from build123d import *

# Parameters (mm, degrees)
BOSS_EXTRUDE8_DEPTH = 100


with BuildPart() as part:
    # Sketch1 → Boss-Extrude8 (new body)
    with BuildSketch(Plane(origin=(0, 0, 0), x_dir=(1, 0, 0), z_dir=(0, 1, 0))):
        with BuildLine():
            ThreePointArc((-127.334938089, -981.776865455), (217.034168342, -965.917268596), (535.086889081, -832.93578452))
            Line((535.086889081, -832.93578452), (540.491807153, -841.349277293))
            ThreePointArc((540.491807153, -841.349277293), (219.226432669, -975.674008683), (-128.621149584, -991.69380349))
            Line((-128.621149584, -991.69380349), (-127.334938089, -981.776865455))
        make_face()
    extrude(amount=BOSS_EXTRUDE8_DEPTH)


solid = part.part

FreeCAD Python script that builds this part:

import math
import FreeCAD as App
import Part
import Sketcher
Q = App.Units.Quantity

doc = App.newDocument("Part")
body = doc.addObject("PartDesign::Body", "Body")

# Sketch on XZ plane
sketch1 = body.newObject("Sketcher::SketchObject", "Sketch")
sketch1.AttachmentSupport = (doc.getObject("XZ_Plane"), [""])
sketch1.MapMode = "FlatFace"
sketch1.addGeometry(Part.ArcOfCircle(Part.Circle(App.Vector(0, 0, 0), App.Vector(0, 0, 1), 990), math.radians(57), math.radians(97)), False)
sketch1.addGeometry(Part.LineSegment(App.Vector(-127, 982, 0), App.Vector(-129, 992, 0)), False)
sketch1.addGeometry(Part.ArcOfCircle(Part.Circle(App.Vector(0, 0, 0), App.Vector(0, 0, 1), 1000), math.radians(57), math.radians(97)), False)
sketch1.addGeometry(Part.LineSegment(App.Vector(540, 841, 0), App.Vector(535, 833, 0)), False)
sketch1.addConstraint(Sketcher.Constraint("Coincident", 0, 2, 1, 1))
sketch1.addConstraint(Sketcher.Constraint("Coincident", 1, 2, 2, 2))
sketch1.addConstraint(Sketcher.Constraint("Coincident", 2, 1, 3, 1))
sketch1.addConstraint(Sketcher.Constraint("Coincident", 3, 2, 0, 1))
sketch1.addConstraint(Sketcher.Constraint("Coincident", 0, 3, -1, 1))
sketch1.addConstraint(Sketcher.Constraint("Coincident", 2, 3, -1, 1))
sketch1.addConstraint(Sketcher.Constraint("Radius", 0, 990.0))
sketch1.addConstraint(Sketcher.Constraint("Radius", 2, 1000.0))
sketch1.addConstraint(Sketcher.Constraint("DistanceX", 1, 2, -1, 1, 128.62115))
sketch1.addConstraint(Sketcher.Constraint("DistanceX", -1, 1, 3, 2, 535.086889))
sketch1.addConstraint(Sketcher.Constraint("Angle", 1, Q("97.389921 deg")))
sketch1.addConstraint(Sketcher.Constraint("Angle", 3, Q("-122.717125 deg")))
pad1 = body.newObject("PartDesign::Pad", "Pad")
pad1.Profile = sketch1
pad1.Length = 100
pad1.Reversed = True

doc.recompute()
